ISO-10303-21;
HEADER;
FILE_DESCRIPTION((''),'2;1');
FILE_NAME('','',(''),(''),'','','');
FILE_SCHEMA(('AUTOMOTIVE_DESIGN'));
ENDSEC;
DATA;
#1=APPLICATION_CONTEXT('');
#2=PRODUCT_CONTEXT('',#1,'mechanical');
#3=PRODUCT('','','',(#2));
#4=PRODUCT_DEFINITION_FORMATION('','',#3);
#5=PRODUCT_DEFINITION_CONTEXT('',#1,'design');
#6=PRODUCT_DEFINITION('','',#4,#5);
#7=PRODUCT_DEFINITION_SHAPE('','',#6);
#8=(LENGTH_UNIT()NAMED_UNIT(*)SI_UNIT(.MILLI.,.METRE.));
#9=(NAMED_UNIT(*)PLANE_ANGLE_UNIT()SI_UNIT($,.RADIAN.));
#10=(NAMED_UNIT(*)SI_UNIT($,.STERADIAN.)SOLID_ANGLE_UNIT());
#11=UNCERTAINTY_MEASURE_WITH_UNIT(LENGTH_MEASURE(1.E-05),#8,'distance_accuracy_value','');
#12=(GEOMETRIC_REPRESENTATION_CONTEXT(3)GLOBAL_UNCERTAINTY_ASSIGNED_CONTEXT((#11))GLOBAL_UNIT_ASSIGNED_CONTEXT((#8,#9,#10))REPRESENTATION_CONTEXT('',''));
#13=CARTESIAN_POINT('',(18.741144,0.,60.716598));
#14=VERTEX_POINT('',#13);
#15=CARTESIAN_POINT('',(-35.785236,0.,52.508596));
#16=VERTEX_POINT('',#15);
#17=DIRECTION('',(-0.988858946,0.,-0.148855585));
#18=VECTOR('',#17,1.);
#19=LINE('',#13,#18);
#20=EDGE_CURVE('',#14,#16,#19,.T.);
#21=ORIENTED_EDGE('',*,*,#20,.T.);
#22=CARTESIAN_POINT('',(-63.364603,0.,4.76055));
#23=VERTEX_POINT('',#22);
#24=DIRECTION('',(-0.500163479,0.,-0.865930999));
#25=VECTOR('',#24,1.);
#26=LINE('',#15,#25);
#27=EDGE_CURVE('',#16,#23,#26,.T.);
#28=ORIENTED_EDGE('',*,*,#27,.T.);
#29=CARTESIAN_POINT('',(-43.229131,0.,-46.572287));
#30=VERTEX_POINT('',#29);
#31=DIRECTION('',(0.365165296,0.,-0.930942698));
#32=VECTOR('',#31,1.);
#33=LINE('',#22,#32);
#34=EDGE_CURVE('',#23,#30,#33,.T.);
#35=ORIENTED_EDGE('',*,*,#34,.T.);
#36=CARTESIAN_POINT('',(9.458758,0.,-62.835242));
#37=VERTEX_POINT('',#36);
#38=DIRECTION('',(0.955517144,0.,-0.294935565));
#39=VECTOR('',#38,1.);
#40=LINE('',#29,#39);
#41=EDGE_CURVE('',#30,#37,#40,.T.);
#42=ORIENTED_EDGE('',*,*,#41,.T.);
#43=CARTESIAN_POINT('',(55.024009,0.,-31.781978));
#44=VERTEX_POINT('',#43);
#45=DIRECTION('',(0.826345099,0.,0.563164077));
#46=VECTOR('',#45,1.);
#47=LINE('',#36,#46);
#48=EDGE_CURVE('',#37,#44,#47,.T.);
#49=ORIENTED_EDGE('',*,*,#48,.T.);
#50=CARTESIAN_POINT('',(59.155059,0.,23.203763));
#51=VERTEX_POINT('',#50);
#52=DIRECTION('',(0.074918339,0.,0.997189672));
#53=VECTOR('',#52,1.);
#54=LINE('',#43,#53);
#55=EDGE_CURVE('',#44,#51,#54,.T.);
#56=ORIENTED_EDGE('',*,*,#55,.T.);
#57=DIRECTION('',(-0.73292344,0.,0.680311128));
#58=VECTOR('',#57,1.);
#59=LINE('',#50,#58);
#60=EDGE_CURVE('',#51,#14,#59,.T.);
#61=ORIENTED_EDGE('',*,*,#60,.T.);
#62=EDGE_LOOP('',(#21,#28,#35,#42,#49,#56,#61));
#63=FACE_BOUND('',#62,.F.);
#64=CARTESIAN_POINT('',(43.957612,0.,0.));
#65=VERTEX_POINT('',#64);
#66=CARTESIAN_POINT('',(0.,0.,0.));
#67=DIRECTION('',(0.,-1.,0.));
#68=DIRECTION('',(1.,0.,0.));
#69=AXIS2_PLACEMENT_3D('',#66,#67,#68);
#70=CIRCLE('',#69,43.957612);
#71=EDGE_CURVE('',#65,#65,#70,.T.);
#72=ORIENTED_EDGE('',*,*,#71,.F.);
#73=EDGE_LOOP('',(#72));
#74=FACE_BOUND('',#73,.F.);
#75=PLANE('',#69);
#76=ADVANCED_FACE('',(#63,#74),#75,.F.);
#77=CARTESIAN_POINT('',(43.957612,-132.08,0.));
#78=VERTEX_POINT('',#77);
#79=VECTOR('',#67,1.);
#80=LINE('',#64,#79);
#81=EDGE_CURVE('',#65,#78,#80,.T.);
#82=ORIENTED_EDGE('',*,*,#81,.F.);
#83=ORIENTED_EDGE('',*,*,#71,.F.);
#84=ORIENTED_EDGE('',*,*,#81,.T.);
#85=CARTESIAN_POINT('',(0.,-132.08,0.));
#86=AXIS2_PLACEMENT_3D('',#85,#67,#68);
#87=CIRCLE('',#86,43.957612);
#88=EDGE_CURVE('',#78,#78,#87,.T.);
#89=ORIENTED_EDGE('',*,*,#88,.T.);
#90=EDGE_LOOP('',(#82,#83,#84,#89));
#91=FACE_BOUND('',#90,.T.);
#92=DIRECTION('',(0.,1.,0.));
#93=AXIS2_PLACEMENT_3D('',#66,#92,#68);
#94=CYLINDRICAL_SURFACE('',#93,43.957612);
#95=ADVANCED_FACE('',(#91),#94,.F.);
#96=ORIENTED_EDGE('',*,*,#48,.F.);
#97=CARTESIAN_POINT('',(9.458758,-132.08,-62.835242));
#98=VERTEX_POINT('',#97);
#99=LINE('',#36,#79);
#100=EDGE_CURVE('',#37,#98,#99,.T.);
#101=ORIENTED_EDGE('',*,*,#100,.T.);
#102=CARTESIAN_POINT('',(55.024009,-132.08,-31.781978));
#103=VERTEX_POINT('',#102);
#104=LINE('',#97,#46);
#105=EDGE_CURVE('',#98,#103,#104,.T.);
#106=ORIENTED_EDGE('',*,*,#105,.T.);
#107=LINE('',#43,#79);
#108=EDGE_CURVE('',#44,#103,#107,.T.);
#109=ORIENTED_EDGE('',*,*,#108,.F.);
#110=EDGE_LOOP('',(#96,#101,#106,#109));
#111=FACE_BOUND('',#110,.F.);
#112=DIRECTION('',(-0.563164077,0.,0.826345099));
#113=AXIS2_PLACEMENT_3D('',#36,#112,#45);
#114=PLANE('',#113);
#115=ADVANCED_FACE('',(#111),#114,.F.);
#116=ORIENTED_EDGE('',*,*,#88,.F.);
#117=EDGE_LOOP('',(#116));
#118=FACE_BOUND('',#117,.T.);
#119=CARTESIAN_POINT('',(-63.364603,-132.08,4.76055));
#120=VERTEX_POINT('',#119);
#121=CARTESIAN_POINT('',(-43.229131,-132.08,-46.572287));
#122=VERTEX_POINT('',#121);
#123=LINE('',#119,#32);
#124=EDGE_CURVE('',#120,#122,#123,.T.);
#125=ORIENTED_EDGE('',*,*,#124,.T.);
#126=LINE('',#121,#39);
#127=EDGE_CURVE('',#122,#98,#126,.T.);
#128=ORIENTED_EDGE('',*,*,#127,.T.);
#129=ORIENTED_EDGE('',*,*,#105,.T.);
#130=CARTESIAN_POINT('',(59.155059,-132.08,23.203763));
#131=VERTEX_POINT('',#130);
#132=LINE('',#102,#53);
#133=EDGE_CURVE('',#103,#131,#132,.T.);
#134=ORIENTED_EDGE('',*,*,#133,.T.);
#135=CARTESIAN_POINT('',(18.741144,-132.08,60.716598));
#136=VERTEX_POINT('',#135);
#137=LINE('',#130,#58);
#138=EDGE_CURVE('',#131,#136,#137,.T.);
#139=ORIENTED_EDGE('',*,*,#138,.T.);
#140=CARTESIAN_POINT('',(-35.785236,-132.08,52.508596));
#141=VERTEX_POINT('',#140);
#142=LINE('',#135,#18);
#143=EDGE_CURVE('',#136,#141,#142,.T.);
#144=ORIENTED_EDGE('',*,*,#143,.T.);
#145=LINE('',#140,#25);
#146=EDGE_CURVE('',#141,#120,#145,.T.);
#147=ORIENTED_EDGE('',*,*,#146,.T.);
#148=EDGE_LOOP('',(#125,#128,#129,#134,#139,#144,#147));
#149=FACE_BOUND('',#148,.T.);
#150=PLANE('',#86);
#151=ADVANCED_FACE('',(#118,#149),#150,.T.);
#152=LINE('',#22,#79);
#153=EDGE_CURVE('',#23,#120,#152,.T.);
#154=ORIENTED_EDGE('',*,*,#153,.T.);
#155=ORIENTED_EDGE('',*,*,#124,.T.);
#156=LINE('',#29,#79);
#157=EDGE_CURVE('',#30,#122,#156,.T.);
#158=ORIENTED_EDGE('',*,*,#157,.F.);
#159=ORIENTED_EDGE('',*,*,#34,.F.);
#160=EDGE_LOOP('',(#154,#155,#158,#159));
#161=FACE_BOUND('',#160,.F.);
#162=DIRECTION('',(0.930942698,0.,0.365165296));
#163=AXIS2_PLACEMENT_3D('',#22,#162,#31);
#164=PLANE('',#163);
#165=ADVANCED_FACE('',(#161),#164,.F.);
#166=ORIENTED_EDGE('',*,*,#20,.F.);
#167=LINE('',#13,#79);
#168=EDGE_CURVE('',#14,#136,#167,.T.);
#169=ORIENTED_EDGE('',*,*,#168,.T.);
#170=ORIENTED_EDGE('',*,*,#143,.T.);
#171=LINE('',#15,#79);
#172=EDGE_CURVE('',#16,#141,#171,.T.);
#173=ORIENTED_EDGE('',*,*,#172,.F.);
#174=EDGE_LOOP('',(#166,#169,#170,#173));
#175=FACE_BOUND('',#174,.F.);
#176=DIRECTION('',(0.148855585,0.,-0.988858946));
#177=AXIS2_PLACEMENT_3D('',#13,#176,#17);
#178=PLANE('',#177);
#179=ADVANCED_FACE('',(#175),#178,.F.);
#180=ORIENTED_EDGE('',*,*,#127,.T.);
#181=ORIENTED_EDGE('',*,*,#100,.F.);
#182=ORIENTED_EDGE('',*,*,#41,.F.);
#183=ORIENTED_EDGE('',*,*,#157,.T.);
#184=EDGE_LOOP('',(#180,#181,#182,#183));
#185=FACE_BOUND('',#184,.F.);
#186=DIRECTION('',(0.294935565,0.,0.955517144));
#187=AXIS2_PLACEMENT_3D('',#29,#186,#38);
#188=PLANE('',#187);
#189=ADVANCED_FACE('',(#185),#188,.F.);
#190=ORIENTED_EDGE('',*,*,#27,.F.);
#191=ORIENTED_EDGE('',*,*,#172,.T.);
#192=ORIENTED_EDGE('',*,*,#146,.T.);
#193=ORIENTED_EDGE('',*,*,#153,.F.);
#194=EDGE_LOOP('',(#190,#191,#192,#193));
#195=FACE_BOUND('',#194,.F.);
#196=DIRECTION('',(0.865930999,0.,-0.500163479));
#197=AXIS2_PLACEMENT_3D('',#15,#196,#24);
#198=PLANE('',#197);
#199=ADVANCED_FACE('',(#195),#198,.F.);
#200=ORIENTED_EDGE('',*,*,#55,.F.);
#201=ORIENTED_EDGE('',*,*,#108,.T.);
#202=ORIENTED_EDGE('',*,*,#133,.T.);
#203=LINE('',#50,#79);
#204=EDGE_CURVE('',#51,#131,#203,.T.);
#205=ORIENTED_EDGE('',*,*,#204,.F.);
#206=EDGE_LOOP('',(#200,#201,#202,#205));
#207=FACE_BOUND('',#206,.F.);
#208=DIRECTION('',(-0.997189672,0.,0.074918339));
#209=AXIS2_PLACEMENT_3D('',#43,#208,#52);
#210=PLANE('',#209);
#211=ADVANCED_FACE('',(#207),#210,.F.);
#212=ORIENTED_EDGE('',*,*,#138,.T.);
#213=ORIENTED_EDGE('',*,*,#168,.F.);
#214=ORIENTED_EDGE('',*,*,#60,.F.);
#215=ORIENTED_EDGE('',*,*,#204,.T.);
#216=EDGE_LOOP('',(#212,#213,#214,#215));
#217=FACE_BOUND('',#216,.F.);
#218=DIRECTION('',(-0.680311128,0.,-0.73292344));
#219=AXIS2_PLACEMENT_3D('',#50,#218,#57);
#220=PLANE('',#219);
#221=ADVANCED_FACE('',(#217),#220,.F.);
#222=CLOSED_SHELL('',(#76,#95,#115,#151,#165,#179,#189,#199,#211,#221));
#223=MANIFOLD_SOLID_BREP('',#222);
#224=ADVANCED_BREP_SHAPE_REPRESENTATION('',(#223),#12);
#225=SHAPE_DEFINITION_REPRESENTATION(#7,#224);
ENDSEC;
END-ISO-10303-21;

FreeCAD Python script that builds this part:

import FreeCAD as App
import Part
import Sketcher
from FreeCAD import Vector
Q = App.Units.Quantity

doc = App.newDocument("Part")
body = doc.addObject("PartDesign::Body", "Body")

sketch1 = body.newObject("Sketcher::SketchObject", "Sketch")
sketch1.AttachmentSupport = (doc.getObject("XZ_Plane"), [""])
sketch1.MapMode = "FlatFace"
sketch1.addGeometry(Part.LineSegment(Vector(-36, 53, 0), Vector(-63, 5, 0)), False)
sketch1.addGeometry(Part.LineSegment(Vector(-63, 5, 0), Vector(-43, -47, 0)), False)
sketch1.addGeometry(Part.LineSegment(Vector(-43, -47, 0), Vector(9, -63, 0)), False)
sketch1.addGeometry(Part.LineSegment(Vector(9, -63, 0), Vector(55, -32, 0)), False)
sketch1.addGeometry(Part.LineSegment(Vector(55, -32, 0), Vector(59, 23, 0)), False)
sketch1.addGeometry(Part.LineSegment(Vector(59, 23, 0), Vector(19, 61, 0)), False)
sketch1.addGeometry(Part.LineSegment(Vector(19, 61, 0), Vector(-36, 53, 0)), False)
sketch1.addGeometry(Part.Circle(Vector(0, 0, 0), Vector(0, 0, 1), 44), False)
sketch1.addConstraint(Sketcher.Constraint("Coincident", 0, 2, 1, 1))
sketch1.addConstraint(Sketcher.Constraint("Coincident", 1, 2, 2, 1))
sketch1.addConstraint(Sketcher.Constraint("Coincident", 2, 2, 3, 1))
sketch1.addConstraint(Sketcher.Constraint("Coincident", 3, 2, 4, 1))
sketch1.addConstraint(Sketcher.Constraint("Coincident", 4, 2, 5, 1))
sketch1.addConstraint(Sketcher.Constraint("Coincident", 5, 2, 6, 1))
sketch1.addConstraint(Sketcher.Constraint("Coincident", 6, 2, 0, 1))
sketch1.addConstraint(Sketcher.Constraint("Coincident", 7, 3, -1, 1))
sketch1.addConstraint(Sketcher.Constraint("Equal", 0, 1))
sketch1.addConstraint(Sketcher.Constraint("Equal", 1, 2))
sketch1.addConstraint(Sketcher.Constraint("Equal", 2, 3))
sketch1.addConstraint(Sketcher.Constraint("Equal", 3, 4))
sketch1.addConstraint(Sketcher.Constraint("Equal", 4, 5))
sketch1.addConstraint(Sketcher.Constraint("Equal", 5, 6))
sketch1.addConstraint(Sketcher.Constraint("Diameter", 7, Q("87.915224 mm")))
sketch1.addConstraint(Sketcher.Constraint("DistanceX", 2, 2, 4, 2, Q("49.696301 mm")))
sketch1.addConstraint(Sketcher.Constraint("DistanceY", -1, 1, 0, 2, Q("4.76055 mm")))
sketch1.addConstraint(Sketcher.Constraint("DistanceX", 1, 2, -1, 1, Q("43.229131 mm")))
sketch1.addConstraint(Sketcher.Constraint("DistanceX", -1, 1, 3, 2, Q("55.024009 mm")))
sketch1.addConstraint(Sketcher.Constraint("DistanceX", -1, 1, 4, 2, Q("59.155059 mm")))
sketch1.addConstraint(Sketcher.Constraint("DistanceX", 0, 2, 1, 2, Q("20.135472 mm")))
sketch1.addConstraint(Sketcher.Constraint("DistanceY", 1, 2, 3, 2, Q("14.790309 mm")))
sketch1.addConstraint(Sketcher.Constraint("DistanceX", 6, 2, 5, 2, Q("54.52638 mm")))
pad1 = body.newObject("PartDesign::Pad", "Pad")
pad1.Profile = sketch1
pad1.Length = Q("5.2 in")

doc.recompute()
